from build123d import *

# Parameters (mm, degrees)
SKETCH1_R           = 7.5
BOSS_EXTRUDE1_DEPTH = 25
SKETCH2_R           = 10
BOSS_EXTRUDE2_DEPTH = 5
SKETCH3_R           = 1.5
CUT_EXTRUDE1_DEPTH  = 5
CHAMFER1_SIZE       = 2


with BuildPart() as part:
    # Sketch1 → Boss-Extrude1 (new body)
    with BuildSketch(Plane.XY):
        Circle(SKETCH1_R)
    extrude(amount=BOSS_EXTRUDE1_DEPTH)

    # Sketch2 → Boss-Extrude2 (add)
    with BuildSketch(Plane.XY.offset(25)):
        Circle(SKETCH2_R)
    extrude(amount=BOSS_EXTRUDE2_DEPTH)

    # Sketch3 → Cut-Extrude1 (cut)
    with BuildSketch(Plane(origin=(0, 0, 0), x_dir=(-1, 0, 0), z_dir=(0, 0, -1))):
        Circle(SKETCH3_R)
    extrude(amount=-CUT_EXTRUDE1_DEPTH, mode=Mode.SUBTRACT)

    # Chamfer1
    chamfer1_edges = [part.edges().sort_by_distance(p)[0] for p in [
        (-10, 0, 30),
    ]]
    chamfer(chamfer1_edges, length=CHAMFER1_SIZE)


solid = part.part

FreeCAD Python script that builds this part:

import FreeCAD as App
import Part
import Sketcher


def edges_at(feature, points):
    """Names of the edges that pass closest to the given points."""
    edges = feature.Shape.Edges
    near = lambda p: min(range(len(edges)), key=lambda i: edges[i].distToShape(Part.Vertex(*p))[0])
    return sorted({f"Edge{near(p) + 1}" for p in points})

doc = App.newDocument("Part")
body = doc.addObject("PartDesign::Body", "Body")

sketch1 = body.newObject("Sketcher::SketchObject", "Sketch")
sketch1.AttachmentSupport = (doc.getObject("XY_Plane"), [""])
sketch1.MapMode = "FlatFace"
sketch1.addGeometry(Part.Circle(App.Vector(0, 0, 0), App.Vector(0, 0, 1), 8), False)
sketch1.addConstraint(Sketcher.Constraint("Coincident", 0, 3, -1, 1))
sketch1.addConstraint(Sketcher.Constraint("Diameter", 0, 15.0))
pad1 = body.newObject("PartDesign::Pad", "Pad")
pad1.Profile = sketch1
pad1.Length = 25

sketch2 = body.newObject("Sketcher::SketchObject", "Sketch001")
sketch2.AttachmentSupport = (doc.getObject("XY_Plane"), [""])
sketch2.MapMode = "FlatFace"
sketch2.AttachmentOffset = App.Placement(App.Vector(0, 0, 25), App.Rotation())
sketch2.addGeometry(Part.Circle(App.Vector(0, 0, 0), App.Vector(0, 0, 1), 10), False)
sketch2.addConstraint(Sketcher.Constraint("Coincident", 0, 3, -1, 1))
sketch2.addConstraint(Sketcher.Constraint("Diameter", 0, 20.0))
pad2 = body.newObject("PartDesign::Pad", "Pad001")
pad2.Profile = sketch2
pad2.Length = 5

sketch3 = body.newObject("Sketcher::SketchObject", "Sketch002")
sketch3.AttachmentSupport = (doc.getObject("XY_Plane"), [""])
sketch3.MapMode = "FlatFace"
sketch3.addGeometry(Part.Circle(App.Vector(0, 0, 0), App.Vector(0, 0, 1), 1.5), False)
sketch3.addConstraint(Sketcher.Constraint("Coincident", 0, 3, -1, 1))
sketch3.addConstraint(Sketcher.Constraint("Diameter", 0, 3.0))
pocket1 = body.newObject("PartDesign::Pocket", "Pocket")
pocket1.Profile = sketch3
pocket1.Length = 5
pocket1.Reversed = True
doc.recompute()

chamfer = body.newObject("PartDesign::Chamfer", "Chamfer")
chamfer.Base = (pocket1, edges_at(pocket1, [(-10, 0, 30)]))
chamfer.Size = 2

doc.recompute()
